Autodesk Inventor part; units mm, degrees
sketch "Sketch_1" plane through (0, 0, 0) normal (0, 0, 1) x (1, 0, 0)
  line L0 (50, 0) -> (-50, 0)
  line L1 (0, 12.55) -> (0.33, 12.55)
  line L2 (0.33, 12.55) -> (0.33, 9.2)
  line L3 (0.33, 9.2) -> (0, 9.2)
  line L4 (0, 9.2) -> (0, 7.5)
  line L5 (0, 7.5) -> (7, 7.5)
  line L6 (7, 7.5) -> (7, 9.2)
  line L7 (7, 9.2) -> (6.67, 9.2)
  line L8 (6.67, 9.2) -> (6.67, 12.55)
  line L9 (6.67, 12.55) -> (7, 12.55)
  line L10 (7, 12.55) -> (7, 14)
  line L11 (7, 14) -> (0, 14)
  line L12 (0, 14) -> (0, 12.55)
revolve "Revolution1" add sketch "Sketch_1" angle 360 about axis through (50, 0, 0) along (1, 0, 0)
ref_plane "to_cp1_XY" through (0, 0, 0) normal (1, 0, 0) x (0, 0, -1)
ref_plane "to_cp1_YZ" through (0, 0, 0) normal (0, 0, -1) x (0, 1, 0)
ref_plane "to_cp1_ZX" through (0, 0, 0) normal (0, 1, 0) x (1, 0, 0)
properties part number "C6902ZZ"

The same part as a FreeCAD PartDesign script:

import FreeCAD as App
import Part
import Sketcher
from FreeCAD import Vector

doc = App.newDocument("Part")
body = doc.addObject("PartDesign::Body", "Body")

# Sketch on XY plane
sketch1 = body.newObject("Sketcher::SketchObject", "Sketch")
sketch1.AttachmentSupport = (doc.getObject("XY_Plane"), [""])
sketch1.MapMode = "FlatFace"
sketch1.addGeometry(Part.LineSegment(Vector(0, 14, 0), Vector(0, 12.55, 0)), False)
sketch1.addGeometry(Part.LineSegment(Vector(0, 12.55, 0), Vector(0.33, 12.55, 0)), False)
sketch1.addGeometry(Part.LineSegment(Vector(0.33, 12.55, 0), Vector(0.33, 9.2, 0)), False)
sketch1.addGeometry(Part.LineSegment(Vector(0.33, 9.2, 0), Vector(0, 9.2, 0)), False)
sketch1.addGeometry(Part.LineSegment(Vector(0, 9.2, 0), Vector(0, 7.5, 0)), False)
sketch1.addGeometry(Part.LineSegment(Vector(0, 7.5, 0), Vector(7, 7.5, 0)), False)
sketch1.addGeometry(Part.LineSegment(Vector(7, 7.5, 0), Vector(7, 9.2, 0)), False)
sketch1.addGeometry(Part.LineSegment(Vector(7, 9.2, 0), Vector(6.67, 9.2, 0)), False)
sketch1.addGeometry(Part.LineSegment(Vector(6.67, 9.2, 0), Vector(6.67, 12.55, 0)), False)
sketch1.addGeometry(Part.LineSegment(Vector(6.67, 12.55, 0), Vector(7, 12.55, 0)), False)
sketch1.addGeometry(Part.LineSegment(Vector(7, 12.55, 0), Vector(7, 14, 0)), False)
sketch1.addGeometry(Part.LineSegment(Vector(7, 14, 0), Vector(0, 14, 0)), False)
sketch1.addConstraint(Sketcher.Constraint("Coincident", 0, 2, 1, 1))
sketch1.addConstraint(Sketcher.Constraint("Coincident", 1, 2, 2, 1))
sketch1.addConstraint(Sketcher.Constraint("Coincident", 2, 2, 3, 1))
sketch1.addConstraint(Sketcher.Constraint("Coincident", 3, 2, 4, 1))
sketch1.addConstraint(Sketcher.Constraint("Coincident", 4, 2, 5, 1))
sketch1.addConstraint(Sketcher.Constraint("Coincident", 5, 2, 6, 1))
sketch1.addConstraint(Sketcher.Constraint("Coincident", 6, 2, 7, 1))
sketch1.addConstraint(Sketcher.Constraint("Coincident", 7, 2, 8, 1))
sketch1.addConstraint(Sketcher.Constraint("Coincident", 8, 2, 9, 1))
sketch1.addConstraint(Sketcher.Constraint("Coincident", 9, 2, 10, 1))
sketch1.addConstraint(Sketcher.Constraint("Coincident", 10, 2, 11, 1))
sketch1.addConstraint(Sketcher.Constraint("Coincident", 11, 2, 0, 1))
sketch1.addConstraint(Sketcher.Constraint("Vertical", 0))
sketch1.addConstraint(Sketcher.Constraint("Horizontal", 1))
sketch1.addConstraint(Sketcher.Constraint("Vertical", 2))
sketch1.addConstraint(Sketcher.Constraint("Horizontal", 3))
sketch1.addConstraint(Sketcher.Constraint("Vertical", 4))
sketch1.addConstraint(Sketcher.Constraint("Horizontal", 5))
sketch1.addConstraint(Sketcher.Constraint("Vertical", 6))
sketch1.addConstraint(Sketcher.Constraint("Horizontal", 7))
sketch1.addConstraint(Sketcher.Constraint("Vertical", 8))
sketch1.addConstraint(Sketcher.Constraint("Horizontal", 9))
sketch1.addConstraint(Sketcher.Constraint("Vertical", 10))
sketch1.addConstraint(Sketcher.Constraint("Horizontal", 11))
sketch1.addConstraint(Sketcher.Constraint("PointOnObject", 0, 2, -2))
sketch1.addConstraint(Sketcher.Constraint("PointOnObject", 3, 2, -2))
sketch1.addConstraint(Sketcher.Constraint("Horizontal", 3, 2, 6, 2))
sketch1.addConstraint(Sketcher.Constraint("Horizontal", 1, 2, 8, 2))
sketch1.addConstraint(Sketcher.Constraint("Vertical", 6, 2, 9, 2))
sketch1.addConstraint(Sketcher.Constraint("Equal", 3, 7))
sketch1.addConstraint(Sketcher.Constraint("DistanceX", 5, 1, 5, 2, 7.0))
sketch1.addConstraint(Sketcher.Constraint("DistanceY", 4, 2, 4, 1, 1.7))
sketch1.addConstraint(Sketcher.Constraint("DistanceY", -1, 1, 10, 2, 14.0))
sketch1.addConstraint(Sketcher.Constraint("DistanceX", 1, 1, 1, 2, 0.33))
sketch1.addConstraint(Sketcher.Constraint("DistanceY", 0, 2, 0, 1, 1.45))
sketch1.addConstraint(Sketcher.Constraint("DistanceY", 2, 2, 2, 1, 3.35))
revolution = body.newObject("PartDesign::Revolution", "Revolution")
revolution.Profile = sketch1
revolution.ReferenceAxis = (sketch1, ["H_Axis"])
revolution.Angle = 360

doc.recompute()
